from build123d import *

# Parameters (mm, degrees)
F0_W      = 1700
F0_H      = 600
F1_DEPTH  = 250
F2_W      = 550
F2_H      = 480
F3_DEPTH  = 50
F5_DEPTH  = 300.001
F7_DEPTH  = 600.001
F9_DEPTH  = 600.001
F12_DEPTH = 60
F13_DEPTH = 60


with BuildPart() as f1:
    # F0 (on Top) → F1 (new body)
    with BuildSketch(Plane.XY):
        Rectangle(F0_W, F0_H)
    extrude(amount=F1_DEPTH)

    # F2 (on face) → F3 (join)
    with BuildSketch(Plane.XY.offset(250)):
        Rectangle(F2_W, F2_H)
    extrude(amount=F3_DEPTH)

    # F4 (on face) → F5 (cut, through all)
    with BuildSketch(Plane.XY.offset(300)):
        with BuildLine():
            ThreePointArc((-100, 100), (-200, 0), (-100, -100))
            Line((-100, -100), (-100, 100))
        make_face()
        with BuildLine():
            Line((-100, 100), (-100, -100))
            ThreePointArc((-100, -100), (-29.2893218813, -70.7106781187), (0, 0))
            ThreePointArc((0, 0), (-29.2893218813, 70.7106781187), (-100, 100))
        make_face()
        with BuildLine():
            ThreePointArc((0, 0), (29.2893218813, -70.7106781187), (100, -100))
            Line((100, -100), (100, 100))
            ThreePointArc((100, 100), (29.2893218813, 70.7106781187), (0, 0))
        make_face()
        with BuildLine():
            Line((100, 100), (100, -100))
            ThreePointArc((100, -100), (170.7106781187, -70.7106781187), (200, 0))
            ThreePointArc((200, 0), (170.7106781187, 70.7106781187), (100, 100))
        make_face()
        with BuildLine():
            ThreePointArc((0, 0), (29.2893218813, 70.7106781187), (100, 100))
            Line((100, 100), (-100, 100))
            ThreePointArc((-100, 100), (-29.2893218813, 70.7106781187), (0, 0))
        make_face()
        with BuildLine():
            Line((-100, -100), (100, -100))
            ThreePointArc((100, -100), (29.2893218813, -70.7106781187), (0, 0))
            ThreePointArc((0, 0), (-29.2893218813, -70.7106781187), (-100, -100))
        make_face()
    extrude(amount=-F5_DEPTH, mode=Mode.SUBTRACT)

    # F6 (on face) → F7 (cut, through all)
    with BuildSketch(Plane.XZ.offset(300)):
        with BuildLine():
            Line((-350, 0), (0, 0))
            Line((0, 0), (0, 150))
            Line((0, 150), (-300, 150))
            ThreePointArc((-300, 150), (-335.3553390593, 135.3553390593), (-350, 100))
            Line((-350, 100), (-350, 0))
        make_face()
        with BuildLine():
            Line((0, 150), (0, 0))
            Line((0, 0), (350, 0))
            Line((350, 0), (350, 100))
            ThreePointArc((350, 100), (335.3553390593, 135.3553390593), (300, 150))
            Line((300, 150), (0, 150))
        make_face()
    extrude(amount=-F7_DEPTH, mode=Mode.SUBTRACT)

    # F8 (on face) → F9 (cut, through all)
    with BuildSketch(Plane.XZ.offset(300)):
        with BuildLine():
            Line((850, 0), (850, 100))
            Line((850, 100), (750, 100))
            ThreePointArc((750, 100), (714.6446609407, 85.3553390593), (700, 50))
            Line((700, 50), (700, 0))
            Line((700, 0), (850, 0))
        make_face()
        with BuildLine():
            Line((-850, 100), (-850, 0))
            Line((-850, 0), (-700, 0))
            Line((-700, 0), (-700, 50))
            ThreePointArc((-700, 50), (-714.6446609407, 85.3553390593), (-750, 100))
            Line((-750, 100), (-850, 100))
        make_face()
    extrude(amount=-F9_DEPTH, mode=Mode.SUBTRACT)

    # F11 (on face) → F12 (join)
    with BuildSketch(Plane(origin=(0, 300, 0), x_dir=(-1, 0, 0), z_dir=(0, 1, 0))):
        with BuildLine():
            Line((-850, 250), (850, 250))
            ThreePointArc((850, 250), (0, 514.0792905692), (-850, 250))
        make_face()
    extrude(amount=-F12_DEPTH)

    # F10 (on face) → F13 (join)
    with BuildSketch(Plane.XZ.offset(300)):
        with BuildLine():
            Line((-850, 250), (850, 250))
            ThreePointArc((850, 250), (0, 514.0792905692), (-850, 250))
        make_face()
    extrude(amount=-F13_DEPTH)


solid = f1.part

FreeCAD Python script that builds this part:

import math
import FreeCAD as App
import Part
import Sketcher
from FreeCAD import Vector
Q = App.Units.Quantity


def add_polygon(sketch, points):
    """Adds a closed chain of lines whose ends are joined by coincident constraints."""
    first, n = sketch.GeometryCount, len(points)
    for a, b in zip(points, points[1:] + points[:1]):
        sketch.addGeometry(Part.LineSegment(App.Vector(*a, 0), App.Vector(*b, 0)), False)
    for i in range(n):
        sketch.addConstraint(Sketcher.Constraint("Coincident", first + i, 2, first + (i + 1) % n, 1))

doc = App.newDocument("Part")
body = doc.addObject("PartDesign::Body", "Body")

# Sketch on XY plane
sketch1 = body.newObject("Sketcher::SketchObject", "Sketch")
sketch1.AttachmentSupport = (doc.getObject("XY_Plane"), [""])
sketch1.MapMode = "FlatFace"
add_polygon(sketch1, [(-850, 300), (-850, -300), (850, -300), (850, 300)])  # lines 0-3
sketch1.addConstraint(Sketcher.Constraint("Vertical", 0))
sketch1.addConstraint(Sketcher.Constraint("Horizontal", 1))
sketch1.addConstraint(Sketcher.Constraint("Vertical", 2))
sketch1.addConstraint(Sketcher.Constraint("Horizontal", 3))
sketch1.addConstraint(Sketcher.Constraint("Symmetric", 0, 2, 2, 2, -1, 1))
sketch1.addConstraint(Sketcher.Constraint("DistanceX", 1, 1, 1, 2, Q("1700 mm")))
sketch1.addConstraint(Sketcher.Constraint("DistanceY", 0, 2, 0, 1, Q("600 mm")))
pad1 = body.newObject("PartDesign::Pad", "Pad")
pad1.Profile = sketch1
pad1.Length = 250

# Sketch on XY plane
sketch2 = body.newObject("Sketcher::SketchObject", "Sketch001")
sketch2.AttachmentSupport = (doc.getObject("XY_Plane"), [""])
sketch2.MapMode = "FlatFace"
sketch2.AttachmentOffset = App.Placement(Vector(0, 0, 250), App.Rotation())
add_polygon(sketch2, [(-275, 240), (-275, -240), (275, -240), (275, 240)])  # lines 0-3
sketch2.addConstraint(Sketcher.Constraint("Vertical", 0))
sketch2.addConstraint(Sketcher.Constraint("Horizontal", 1))
sketch2.addConstraint(Sketcher.Constraint("Vertical", 2))
sketch2.addConstraint(Sketcher.Constraint("Horizontal", 3))
sketch2.addConstraint(Sketcher.Constraint("Symmetric", 0, 2, 2, 2, -1, 1))
sketch2.addConstraint(Sketcher.Constraint("DistanceX", 1, 1, 1, 2, Q("550 mm")))
sketch2.addConstraint(Sketcher.Constraint("DistanceY", 0, 2, 0, 1, Q("480 mm")))
pad2 = body.newObject("PartDesign::Pad", "Pad001")
pad2.Profile = sketch2
pad2.Length = 50

# Sketch on XY plane
sketch3 = body.newObject("Sketcher::SketchObject", "Sketch002")
sketch3.AttachmentSupport = (doc.getObject("XY_Plane"), [""])
sketch3.MapMode = "FlatFace"
sketch3.AttachmentOffset = App.Placement(Vector(0, 0, 300), App.Rotation())
sketch3.addGeometry(Part.ArcOfCircle(Part.Circle(Vector(-100, 0, 0), Vector(0, 0, 1), 100), math.radians(90), math.radians(270)), False)
sketch3.addGeometry(Part.LineSegment(Vector(-100, -100, 0), Vector(100, -100, 0)), False)
sketch3.addGeometry(Part.ArcOfCircle(Part.Circle(Vector(100, 0, 0), Vector(0, 0, 1), 100), math.radians(-90), math.radians(0)), False)
sketch3.addGeometry(Part.ArcOfCircle(Part.Circle(Vector(100, 0, 0), Vector(0, 0, 1), 100), math.radians(0), math.radians(90)), False)
sketch3.addGeometry(Part.LineSegment(Vector(100, 100, 0), Vector(-100, 100, 0)), False)
sketch3.addConstraint(Sketcher.Constraint("Tangent", 0, 2, 1, 1))
sketch3.addConstraint(Sketcher.Constraint("Tangent", 1, 2, 2, 1))
sketch3.addConstraint(Sketcher.Constraint("Tangent", 2, 2, 3, 1))
sketch3.addConstraint(Sketcher.Constraint("Tangent", 3, 2, 4, 1))
sketch3.addConstraint(Sketcher.Constraint("Tangent", 4, 2, 0, 1))
sketch3.addConstraint(Sketcher.Constraint("Horizontal", 1))
sketch3.addConstraint(Sketcher.Constraint("Horizontal", 4))
sketch3.addConstraint(Sketcher.Constraint("Equal", 0, 2))
sketch3.addConstraint(Sketcher.Constraint("Symmetric", 0, 3, 2, 3, -1, 1))
sketch3.addConstraint(Sketcher.Constraint("PointOnObject", 2, 2, -1))
sketch3.addConstraint(Sketcher.Constraint("Radius", 0, Q("100 mm")))
sketch3.addConstraint(Sketcher.Constraint("DistanceX", 1, 1, 1, 2, Q("200 mm")))
pocket1 = body.newObject("PartDesign::Pocket", "Pocket")
pocket1.Profile = sketch3
pocket1.Type = "ThroughAll"

# Sketch on XZ plane
sketch4 = body.newObject("Sketcher::SketchObject", "Sketch003")
sketch4.AttachmentSupport = (doc.getObject("XZ_Plane"), [""])
sketch4.MapMode = "FlatFace"
sketch4.AttachmentOffset = App.Placement(Vector(0, 0, 300), App.Rotation())
sketch4.addGeometry(Part.LineSegment(Vector(-350, 0, 0), Vector(350, 0, 0)), False)
sketch4.addGeometry(Part.LineSegment(Vector(350, 0, 0), Vector(350, 100, 0)), False)
sketch4.addGeometry(Part.ArcOfCircle(Part.Circle(Vector(300, 100, 0), Vector(0, 0, 1), 50), math.radians(0), math.radians(90)), False)
sketch4.addGeometry(Part.LineSegment(Vector(300, 150, 0), Vector(-300, 150, 0)), False)
sketch4.addGeometry(Part.ArcOfCircle(Part.Circle(Vector(-300, 100, 0), Vector(0, 0, 1), 50), math.radians(90), math.radians(180)), False)
sketch4.addGeometry(Part.LineSegment(Vector(-350, 100, 0), Vector(-350, 0, 0)), False)
sketch4.addConstraint(Sketcher.Constraint("Coincident", 0, 2, 1, 1))
sketch4.addConstraint(Sketcher.Constraint("Tangent", 1, 2, 2, 1))
sketch4.addConstraint(Sketcher.Constraint("Tangent", 2, 2, 3, 1))
sketch4.addConstraint(Sketcher.Constraint("Tangent", 3, 2, 4, 1))
sketch4.addConstraint(Sketcher.Constraint("Tangent", 4, 2, 5, 1))
sketch4.addConstraint(Sketcher.Constraint("Coincident", 5, 2, 0, 1))
sketch4.addConstraint(Sketcher.Constraint("Horizontal", 0))
sketch4.addConstraint(Sketcher.Constraint("Vertical", 1))
sketch4.addConstraint(Sketcher.Constraint("Horizontal", 3))
sketch4.addConstraint(Sketcher.Constraint("Vertical", 5))
sketch4.addConstraint(Sketcher.Constraint("Equal", 2, 4))
sketch4.addConstraint(Sketcher.Constraint("Symmetric", 0, 2, 5, 2, -1, 1))
sketch4.addConstraint(Sketcher.Constraint("Radius", 2, Q("50 mm")))
sketch4.addConstraint(Sketcher.Constraint("DistanceX", 0, 1, 0, 2, Q("700 mm")))
sketch4.addConstraint(Sketcher.Constraint("DistanceY", 1, 1, 1, 2, Q("100 mm")))
pocket2 = body.newObject("PartDesign::Pocket", "Pocket001")
pocket2.Profile = sketch4
pocket2.Type = "ThroughAll"

# Sketch on XZ plane
sketch5 = body.newObject("Sketcher::SketchObject", "Sketch004")
sketch5.AttachmentSupport = (doc.getObject("XZ_Plane"), [""])
sketch5.MapMode = "FlatFace"
sketch5.AttachmentOffset = App.Placement(Vector(0, 0, 300), App.Rotation())
sketch5.addGeometry(Part.LineSegment(Vector(850, 0, 0), Vector(850, 100, 0)), False)
sketch5.addGeometry(Part.LineSegment(Vector(850, 100, 0), Vector(750, 100, 0)), False)
sketch5.addGeometry(Part.ArcOfCircle(Part.Circle(Vector(750, 50, 0), Vector(0, 0, 1), 50), math.radians(90), math.radians(180)), False)
sketch5.addGeometry(Part.LineSegment(Vector(700, 50, 0), Vector(700, 0, 0)), False)
sketch5.addGeometry(Part.LineSegment(Vector(700, 0, 0), Vector(850, 0, 0)), False)
sketch5.addGeometry(Part.LineSegment(Vector(-850, 100, 0), Vector(-850, 0, 0)), False)
sketch5.addGeometry(Part.LineSegment(Vector(-850, 0, 0), Vector(-700, 0, 0)), False)
sketch5.addGeometry(Part.LineSegment(Vector(-700, 0, 0), Vector(-700, 50, 0)), False)
sketch5.addGeometry(Part.ArcOfCircle(Part.Circle(Vector(-750, 50, 0), Vector(0, 0, 1), 50), math.radians(0), math.radians(90)), False)
sketch5.addGeometry(Part.LineSegment(Vector(-750, 100, 0), Vector(-850, 100, 0)), False)
sketch5.addConstraint(Sketcher.Constraint("Coincident", 0, 2, 1, 1))
sketch5.addConstraint(Sketcher.Constraint("Tangent", 1, 2, 2, 1))
sketch5.addConstraint(Sketcher.Constraint("Tangent", 2, 2, 3, 1))
sketch5.addConstraint(Sketcher.Constraint("Coincident", 3, 2, 4, 1))
sketch5.addConstraint(Sketcher.Constraint("Coincident", 4, 2, 0, 1))
sketch5.addConstraint(Sketcher.Constraint("Coincident", 5, 2, 6, 1))
sketch5.addConstraint(Sketcher.Constraint("Coincident", 6, 2, 7, 1))
sketch5.addConstraint(Sketcher.Constraint("Tangent", 7, 2, 8, 1))
sketch5.addConstraint(Sketcher.Constraint("Tangent", 8, 2, 9, 1))
sketch5.addConstraint(Sketcher.Constraint("Coincident", 9, 2, 5, 1))
sketch5.addConstraint(Sketcher.Constraint("Vertical", 0))
sketch5.addConstraint(Sketcher.Constraint("Horizontal", 1))
sketch5.addConstraint(Sketcher.Constraint("Vertical", 3))
sketch5.addConstraint(Sketcher.Constraint("Horizontal", 4))
sketch5.addConstraint(Sketcher.Constraint("Vertical", 5))
sketch5.addConstraint(Sketcher.Constraint("Horizontal", 6))
sketch5.addConstraint(Sketcher.Constraint("Vertical", 7))
sketch5.addConstraint(Sketcher.Constraint("Horizontal", 9))
sketch5.addConstraint(Sketcher.Constraint("Equal", 2, 8))
sketch5.addConstraint(Sketcher.Constraint("Symmetric", 4, 2, 5, 2, -1, 1))
sketch5.addConstraint(Sketcher.Constraint("Symmetric", 2, 3, 8, 3, -2))
sketch5.addConstraint(Sketcher.Constraint("PointOnObject", 3, 2, -1))
sketch5.addConstraint(Sketcher.Constraint("Equal", 9, 0))
sketch5.addConstraint(Sketcher.Constraint("Radius", 2, Q("50 mm")))
sketch5.addConstraint(Sketcher.Constraint("DistanceX", 1, 2, 1, 1, Q("100 mm")))
sketch5.addConstraint(Sketcher.Constraint("DistanceX", -1, 1, 2, 3, Q("750 mm")))
pocket3 = body.newObject("PartDesign::Pocket", "Pocket002")
pocket3.Profile = sketch5
pocket3.Type = "ThroughAll"

# Sketch on XZ plane
sketch6 = body.newObject("Sketcher::SketchObject", "Sketch005")
sketch6.AttachmentSupport = (doc.getObject("XZ_Plane"), [""])
sketch6.MapMode = "FlatFace"
sketch6.AttachmentOffset = App.Placement(Vector(0, 0, -300), App.Rotation())
sketch6.addGeometry(Part.LineSegment(Vector(850, 250, 0), Vector(-850, 250, 0)), False)
sketch6.addGeometry(Part.ArcOfCircle(Part.Circle(Vector(0, -986, 0), Vector(0, 0, 1), 1500), math.radians(55), math.radians(125)), False)
sketch6.addConstraint(Sketcher.Constraint("Coincident", 0, 1, 1, 1))
sketch6.addConstraint(Sketcher.Constraint("Coincident", 1, 2, 0, 2))
sketch6.addConstraint(Sketcher.Constraint("Horizontal", 0))
sketch6.addConstraint(Sketcher.Constraint("PointOnObject", 1, 3, -2))
sketch6.addConstraint(Sketcher.Constraint("Radius", 1, Q("1500 mm")))
sketch6.addConstraint(Sketcher.Constraint("DistanceX", 0, 2, 0, 1, Q("1700 mm")))
sketch6.addConstraint(Sketcher.Constraint("DistanceY", -1, 1, 0, 1, Q("250 mm")))
pad3 = body.newObject("PartDesign::Pad", "Pad002")
pad3.Profile = sketch6
pad3.Length = 60

# Sketch on XZ plane
sketch7 = body.newObject("Sketcher::SketchObject", "Sketch006")
sketch7.AttachmentSupport = (doc.getObject("XZ_Plane"), [""])
sketch7.MapMode = "FlatFace"
sketch7.AttachmentOffset = App.Placement(Vector(0, 0, 300), App.Rotation())
sketch7.addGeometry(Part.LineSegment(Vector(-850, 250, 0), Vector(850, 250, 0)), False)
sketch7.addGeometry(Part.ArcOfCircle(Part.Circle(Vector(0, -986, 0), Vector(0, 0, 1), 1500), math.radians(55), math.radians(125)), False)
sketch7.addConstraint(Sketcher.Constraint("Coincident", 0, 1, 1, 2))
sketch7.addConstraint(Sketcher.Constraint("Coincident", 1, 1, 0, 2))
sketch7.addConstraint(Sketcher.Constraint("Horizontal", 0))
sketch7.addConstraint(Sketcher.Constraint("PointOnObject", 1, 3, -2))
sketch7.addConstraint(Sketcher.Constraint("Radius", 1, Q("1500 mm")))
sketch7.addConstraint(Sketcher.Constraint("DistanceX", 0, 1, 0, 2, Q("1700 mm")))
sketch7.addConstraint(Sketcher.Constraint("DistanceY", -1, 1, 0, 1, Q("250 mm")))
pad4 = body.newObject("PartDesign::Pad", "Pad003")
pad4.Profile = sketch7
pad4.Length = 60
pad4.Reversed = True

doc.recompute()
